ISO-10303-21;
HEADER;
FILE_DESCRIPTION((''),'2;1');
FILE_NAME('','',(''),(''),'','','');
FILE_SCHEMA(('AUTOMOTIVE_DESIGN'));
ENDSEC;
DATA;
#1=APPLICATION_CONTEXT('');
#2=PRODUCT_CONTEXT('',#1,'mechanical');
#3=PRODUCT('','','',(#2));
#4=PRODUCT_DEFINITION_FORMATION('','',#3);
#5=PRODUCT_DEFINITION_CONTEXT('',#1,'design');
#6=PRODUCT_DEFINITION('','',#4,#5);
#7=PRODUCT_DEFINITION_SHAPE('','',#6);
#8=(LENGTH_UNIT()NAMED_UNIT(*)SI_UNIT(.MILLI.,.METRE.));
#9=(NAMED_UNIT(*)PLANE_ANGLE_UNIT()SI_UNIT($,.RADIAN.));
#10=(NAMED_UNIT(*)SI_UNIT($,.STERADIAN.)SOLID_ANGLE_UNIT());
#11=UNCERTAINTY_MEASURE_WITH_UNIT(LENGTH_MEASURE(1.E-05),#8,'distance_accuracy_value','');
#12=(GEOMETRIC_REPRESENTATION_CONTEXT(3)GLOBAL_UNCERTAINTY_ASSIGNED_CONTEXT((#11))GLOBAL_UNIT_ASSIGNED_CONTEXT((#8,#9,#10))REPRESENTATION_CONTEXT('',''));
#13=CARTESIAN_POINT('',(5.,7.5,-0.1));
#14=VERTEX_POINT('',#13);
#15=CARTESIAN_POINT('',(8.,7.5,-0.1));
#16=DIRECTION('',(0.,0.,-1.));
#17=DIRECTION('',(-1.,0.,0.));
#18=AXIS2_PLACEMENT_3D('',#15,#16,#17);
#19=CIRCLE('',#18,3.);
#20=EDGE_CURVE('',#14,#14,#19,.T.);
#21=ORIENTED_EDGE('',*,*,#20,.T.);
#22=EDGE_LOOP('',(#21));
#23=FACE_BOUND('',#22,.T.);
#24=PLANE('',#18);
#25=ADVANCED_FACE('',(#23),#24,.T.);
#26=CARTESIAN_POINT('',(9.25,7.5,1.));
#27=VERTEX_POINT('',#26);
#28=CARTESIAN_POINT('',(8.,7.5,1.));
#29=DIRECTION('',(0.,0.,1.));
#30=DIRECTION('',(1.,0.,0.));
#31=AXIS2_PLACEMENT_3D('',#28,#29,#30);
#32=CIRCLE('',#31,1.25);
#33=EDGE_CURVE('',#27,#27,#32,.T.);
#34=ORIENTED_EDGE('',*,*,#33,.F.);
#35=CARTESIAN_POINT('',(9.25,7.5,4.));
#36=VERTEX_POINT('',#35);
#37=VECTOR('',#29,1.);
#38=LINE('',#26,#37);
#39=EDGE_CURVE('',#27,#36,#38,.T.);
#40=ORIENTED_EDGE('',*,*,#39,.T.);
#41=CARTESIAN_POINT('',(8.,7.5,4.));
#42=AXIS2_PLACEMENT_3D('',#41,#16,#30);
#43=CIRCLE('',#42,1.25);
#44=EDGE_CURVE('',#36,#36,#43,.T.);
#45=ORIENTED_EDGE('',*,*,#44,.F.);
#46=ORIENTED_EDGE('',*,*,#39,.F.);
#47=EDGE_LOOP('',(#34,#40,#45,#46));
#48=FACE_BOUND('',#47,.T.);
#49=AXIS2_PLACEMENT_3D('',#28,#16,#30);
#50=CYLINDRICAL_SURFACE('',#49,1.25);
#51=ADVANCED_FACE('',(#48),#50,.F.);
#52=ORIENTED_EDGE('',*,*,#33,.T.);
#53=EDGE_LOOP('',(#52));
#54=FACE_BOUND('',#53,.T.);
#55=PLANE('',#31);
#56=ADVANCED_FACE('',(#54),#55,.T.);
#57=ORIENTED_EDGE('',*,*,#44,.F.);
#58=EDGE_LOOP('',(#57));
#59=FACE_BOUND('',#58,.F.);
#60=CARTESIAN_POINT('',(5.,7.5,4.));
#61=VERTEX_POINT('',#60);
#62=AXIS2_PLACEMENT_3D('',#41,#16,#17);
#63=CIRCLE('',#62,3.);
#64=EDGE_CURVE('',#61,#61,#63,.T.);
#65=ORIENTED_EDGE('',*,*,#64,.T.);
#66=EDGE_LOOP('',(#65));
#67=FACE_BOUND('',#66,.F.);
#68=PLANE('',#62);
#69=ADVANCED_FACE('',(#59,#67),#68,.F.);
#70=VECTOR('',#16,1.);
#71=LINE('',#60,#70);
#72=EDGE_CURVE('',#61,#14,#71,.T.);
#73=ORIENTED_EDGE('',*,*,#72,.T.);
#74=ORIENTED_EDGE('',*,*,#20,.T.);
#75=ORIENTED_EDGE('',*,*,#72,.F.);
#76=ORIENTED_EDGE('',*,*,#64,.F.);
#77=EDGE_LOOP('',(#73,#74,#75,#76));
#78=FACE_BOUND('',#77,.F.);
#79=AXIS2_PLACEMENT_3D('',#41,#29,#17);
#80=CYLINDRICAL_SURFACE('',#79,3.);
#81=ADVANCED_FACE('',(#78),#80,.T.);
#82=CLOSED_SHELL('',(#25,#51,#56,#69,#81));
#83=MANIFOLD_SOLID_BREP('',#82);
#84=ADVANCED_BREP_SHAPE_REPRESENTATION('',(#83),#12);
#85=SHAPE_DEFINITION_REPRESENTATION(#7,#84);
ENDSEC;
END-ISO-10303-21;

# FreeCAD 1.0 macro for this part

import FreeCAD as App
import Part
import Sketcher

doc = App.newDocument("Part")
body = doc.addObject("PartDesign::Body", "Body")

sketch1 = doc.addObject("Sketcher::SketchObject", "Sketch")
body.addObject(sketch1)
sketch1.AttachmentSupport = (doc.YZ_Plane, [""])
sketch1.MapMode = "FlatFace"
sketch1.AttachmentOffset = App.Placement(App.Vector(0, 0, 2), App.Rotation())
sketch1.addGeometry(Part.Circle(App.Vector(6, 26, 0), App.Vector(0, 0, 1), 1.25), False)
sketch1.addConstraint([
    Sketcher.Constraint("Diameter", 0, 2.5),
    Sketcher.Constraint("DistanceX", -1, 1, 0, 3, 6.0),
    Sketcher.Constraint("DistanceY", -1, 1, 0, 3, 26.0),
])
pad1 = doc.addObject("PartDesign::Pad", "Pad")
body.addObject(pad1)
pad1.Profile = sketch1
pad1.Length = 5
pad1.Reversed = True
body2 = doc.addObject("PartDesign::Body", "Body001")

sketch2 = doc.addObject("Sketcher::SketchObject", "Sketch001")
body2.addObject(sketch2)
sketch2.AttachmentSupport = (doc.getObject("YZ_Plane001"), [""])
sketch2.MapMode = "FlatFace"
sketch2.AttachmentOffset = App.Placement(App.Vector(0, 0, -1), App.Rotation())
sketch2.addGeometry(Part.Circle(App.Vector(6, 26, 0), App.Vector(0, 0, 1), 3), False)
sketch2.addConstraint([
    Sketcher.Constraint("Diameter", 0, 6.0),
    Sketcher.Constraint("DistanceX", -1, 1, 0, 3, 6.0),
    Sketcher.Constraint("DistanceY", -1, 1, 0, 3, 26.0),
])
pad2 = doc.addObject("PartDesign::Pad", "Pad001")
body2.addObject(pad2)
pad2.Profile = sketch2
pad2.Length = 4.1
doc.recompute()

boolean = doc.addObject("PartDesign::Boolean", "Boolean")
body2.addObject(boolean)
boolean.Type = "Cut"
boolean.addObjects([body])
body3 = doc.addObject("PartDesign::Body", "Body002")
doc.recompute()

body2.Placement = App.Placement(App.Vector(-18, 1.5, 3), App.Rotation(App.Vector(0, 1, 0), 90))
boolean2 = doc.addObject("PartDesign::Boolean", "Boolean001")
body3.addObject(boolean2)
boolean2.Type = "Fuse"
boolean2.addObjects([body2])

doc.recompute()
